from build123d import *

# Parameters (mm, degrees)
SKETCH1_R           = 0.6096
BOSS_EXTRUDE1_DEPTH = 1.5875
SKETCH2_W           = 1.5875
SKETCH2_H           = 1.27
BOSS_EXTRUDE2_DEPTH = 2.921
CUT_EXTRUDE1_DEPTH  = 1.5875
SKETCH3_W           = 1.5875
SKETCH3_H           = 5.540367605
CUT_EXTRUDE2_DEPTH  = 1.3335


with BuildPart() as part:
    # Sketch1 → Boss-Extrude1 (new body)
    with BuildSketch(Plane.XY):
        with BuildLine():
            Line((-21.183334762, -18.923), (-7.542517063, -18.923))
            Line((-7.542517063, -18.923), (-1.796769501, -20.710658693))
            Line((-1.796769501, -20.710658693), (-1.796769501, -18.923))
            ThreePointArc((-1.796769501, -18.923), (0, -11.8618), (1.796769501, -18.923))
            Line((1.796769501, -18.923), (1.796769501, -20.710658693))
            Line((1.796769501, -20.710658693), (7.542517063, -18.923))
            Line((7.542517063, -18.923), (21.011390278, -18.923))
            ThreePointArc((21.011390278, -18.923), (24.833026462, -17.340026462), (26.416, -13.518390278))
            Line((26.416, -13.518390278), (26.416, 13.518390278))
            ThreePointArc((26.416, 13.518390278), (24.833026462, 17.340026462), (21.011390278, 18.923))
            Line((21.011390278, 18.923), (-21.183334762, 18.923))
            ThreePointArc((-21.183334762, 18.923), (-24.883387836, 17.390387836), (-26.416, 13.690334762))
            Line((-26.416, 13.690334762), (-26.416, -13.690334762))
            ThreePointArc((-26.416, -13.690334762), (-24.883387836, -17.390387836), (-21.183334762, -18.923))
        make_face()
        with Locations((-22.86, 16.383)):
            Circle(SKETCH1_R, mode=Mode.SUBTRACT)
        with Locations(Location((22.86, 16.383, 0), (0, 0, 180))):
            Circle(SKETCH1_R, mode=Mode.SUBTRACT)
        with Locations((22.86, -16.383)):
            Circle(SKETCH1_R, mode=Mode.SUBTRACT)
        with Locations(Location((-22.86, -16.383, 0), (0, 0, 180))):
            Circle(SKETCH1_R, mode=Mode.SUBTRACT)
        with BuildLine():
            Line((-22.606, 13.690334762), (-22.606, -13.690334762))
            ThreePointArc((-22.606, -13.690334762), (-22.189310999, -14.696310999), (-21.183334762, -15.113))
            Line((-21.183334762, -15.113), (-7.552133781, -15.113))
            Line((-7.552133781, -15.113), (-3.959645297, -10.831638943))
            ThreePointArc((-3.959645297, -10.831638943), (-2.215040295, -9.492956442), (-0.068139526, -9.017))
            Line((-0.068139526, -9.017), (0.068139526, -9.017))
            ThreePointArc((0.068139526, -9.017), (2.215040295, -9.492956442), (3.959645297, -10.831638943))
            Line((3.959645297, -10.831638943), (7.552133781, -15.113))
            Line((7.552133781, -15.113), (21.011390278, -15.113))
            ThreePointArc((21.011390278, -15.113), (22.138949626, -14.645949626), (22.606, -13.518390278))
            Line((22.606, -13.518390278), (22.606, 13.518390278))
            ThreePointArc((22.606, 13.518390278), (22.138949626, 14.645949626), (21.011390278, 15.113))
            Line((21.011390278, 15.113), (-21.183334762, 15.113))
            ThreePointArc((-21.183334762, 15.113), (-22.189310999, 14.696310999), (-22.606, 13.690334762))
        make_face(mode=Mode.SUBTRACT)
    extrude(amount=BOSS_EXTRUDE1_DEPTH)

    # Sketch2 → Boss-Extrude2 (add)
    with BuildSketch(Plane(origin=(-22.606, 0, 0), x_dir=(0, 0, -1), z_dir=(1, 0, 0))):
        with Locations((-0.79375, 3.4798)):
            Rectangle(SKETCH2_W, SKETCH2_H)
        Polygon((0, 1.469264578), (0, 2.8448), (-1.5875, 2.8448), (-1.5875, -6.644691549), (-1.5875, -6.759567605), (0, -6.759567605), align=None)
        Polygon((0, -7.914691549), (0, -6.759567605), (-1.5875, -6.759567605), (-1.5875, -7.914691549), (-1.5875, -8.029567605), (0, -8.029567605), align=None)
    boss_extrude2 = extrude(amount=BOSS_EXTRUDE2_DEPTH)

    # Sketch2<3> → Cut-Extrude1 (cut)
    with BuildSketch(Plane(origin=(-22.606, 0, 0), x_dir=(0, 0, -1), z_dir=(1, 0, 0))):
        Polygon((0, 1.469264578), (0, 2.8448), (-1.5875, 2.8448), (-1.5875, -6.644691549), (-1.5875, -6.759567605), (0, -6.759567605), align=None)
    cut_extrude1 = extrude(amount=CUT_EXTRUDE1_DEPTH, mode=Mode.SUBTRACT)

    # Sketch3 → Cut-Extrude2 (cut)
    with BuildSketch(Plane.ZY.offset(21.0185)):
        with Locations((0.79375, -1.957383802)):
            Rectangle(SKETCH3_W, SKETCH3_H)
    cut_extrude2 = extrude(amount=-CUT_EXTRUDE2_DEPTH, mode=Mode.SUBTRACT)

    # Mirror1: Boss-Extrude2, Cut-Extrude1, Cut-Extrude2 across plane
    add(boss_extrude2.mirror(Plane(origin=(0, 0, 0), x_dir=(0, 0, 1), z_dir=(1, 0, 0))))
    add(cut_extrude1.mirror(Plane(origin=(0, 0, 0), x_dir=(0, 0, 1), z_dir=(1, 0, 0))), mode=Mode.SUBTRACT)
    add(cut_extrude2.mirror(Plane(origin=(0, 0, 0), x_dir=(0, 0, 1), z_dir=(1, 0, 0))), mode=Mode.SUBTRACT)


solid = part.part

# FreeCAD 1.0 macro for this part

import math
import FreeCAD as App
import Part
import Sketcher

V = App.Vector
Q = App.Units.Quantity


def add_polygon(sketch, points):
    """Adds a closed chain of lines whose ends are joined by coincident constraints."""
    first, n = sketch.GeometryCount, len(points)
    for a, b in zip(points, points[1:] + points[:1]):
        sketch.addGeometry(Part.LineSegment(App.Vector(*a, 0), App.Vector(*b, 0)), False)
    for i in range(n):
        sketch.addConstraint(Sketcher.Constraint("Coincident", first + i, 2, first + (i + 1) % n, 1))

doc = App.newDocument("Part")
body = doc.addObject("PartDesign::Body", "Body")

# Sketch on XY plane
sketch1 = body.newObject("Sketcher::SketchObject", "Sketch")
sketch1.AttachmentSupport = (doc.getObject("XY_Plane"), [""])
sketch1.MapMode = "FlatFace"
sketch1.addGeometry([
    Part.LineSegment(V(-21.183335, -18.923, 0), V(-7.542517, -18.923, 0)),  # 0
    Part.LineSegment(V(-7.542517, -18.923, 0), V(-1.79677, -20.710659, 0)),  # 1
    Part.LineSegment(V(-1.79677, -20.710659, 0), V(-1.79677, -18.923, 0)),  # 2
    Part.ArcOfCircle(Part.Circle(V(0, -15.621, 0), V(0, 0, 1), 3.7592), math.radians(-61.447363), math.radians(241.447363)),  # 3
    Part.LineSegment(V(1.79677, -18.923, 0), V(1.79677, -20.710659, 0)),  # 4
    Part.LineSegment(V(1.79677, -20.710659, 0), V(7.542517, -18.923, 0)),  # 5
    Part.LineSegment(V(7.542517, -18.923, 0), V(21.01139, -18.923, 0)),  # 6
    Part.ArcOfCircle(Part.Circle(V(21.01139, -13.51839, 0), V(0, 0, 1), 5.40461), math.radians(-90), math.radians(0)),  # 7
    Part.LineSegment(V(26.416, -13.51839, 0), V(26.416, 13.51839, 0)),  # 8
    Part.ArcOfCircle(Part.Circle(V(21.01139, 13.51839, 0), V(0, 0, 1), 5.40461), math.radians(0), math.radians(90)),  # 9
    Part.LineSegment(V(21.01139, 18.923, 0), V(-21.183335, 18.923, 0)),  # 10
    Part.ArcOfCircle(Part.Circle(V(-21.183335, 13.690335, 0), V(0, 0, 1), 5.232665), math.radians(90), math.radians(180)),  # 11
    Part.LineSegment(V(-26.416, 13.690335, 0), V(-26.416, -13.690335, 0)),  # 12
    Part.ArcOfCircle(Part.Circle(V(-21.183335, -13.690335, 0), V(0, 0, 1), 5.232665), math.radians(180), math.radians(270)),  # 13
    Part.Circle(V(-22.86, -16.383, 0), V(0, 0, 1), 0.6096),  # 14
    Part.Circle(V(22.86, -16.383, 0), V(0, 0, 1), 0.6096),  # 15
    Part.Circle(V(-22.86, 16.383, 0), V(0, 0, 1), 0.6096),  # 16
    Part.LineSegment(V(-22.606, -13.690335, 0), V(-22.606, 13.690335, 0)),  # 17
    Part.ArcOfCircle(Part.Circle(V(-21.183335, 13.690335, 0), V(0, 0, 1), 1.422665), math.radians(90), math.radians(180)),  # 18
    Part.LineSegment(V(-21.183335, 15.113, 0), V(21.01139, 15.113, 0)),  # 19
    Part.ArcOfCircle(Part.Circle(V(21.01139, 13.51839, 0), V(0, 0, 1), 1.59461), math.radians(0), math.radians(90)),  # 20
    Part.LineSegment(V(22.606, 13.51839, 0), V(22.606, -13.51839, 0)),  # 21
    Part.ArcOfCircle(Part.Circle(V(21.01139, -13.51839, 0), V(0, 0, 1), 1.59461), math.radians(-90), math.radians(0)),  # 22
    Part.LineSegment(V(21.01139, -15.113, 0), V(7.552134, -15.113, 0)),  # 23
    Part.LineSegment(V(7.552134, -15.113, 0), V(3.959645, -10.831639, 0)),  # 24
    Part.ArcOfCircle(Part.Circle(V(0.06814, -14.097, 0), V(0, 0, 1), 5.08), math.radians(40), math.radians(90)),  # 25
    Part.LineSegment(V(0.06814, -9.017, 0), V(-0.06814, -9.017, 0)),  # 26
    Part.ArcOfCircle(Part.Circle(V(-0.06814, -14.097, 0), V(0, 0, 1), 5.08), math.radians(90), math.radians(140)),  # 27
    Part.LineSegment(V(-3.959645, -10.831639, 0), V(-7.552134, -15.113, 0)),  # 28
    Part.LineSegment(V(-7.552134, -15.113, 0), V(-21.183335, -15.113, 0)),  # 29
    Part.ArcOfCircle(Part.Circle(V(-21.183335, -13.690335, 0), V(0, 0, 1), 1.422665), math.radians(-180), math.radians(-90)),  # 30
    Part.Circle(V(22.86, 16.383, 0), V(0, 0, 1), 0.6096),  # 31
], False)
sketch1.addConstraint([
    Sketcher.Constraint("Coincident", 0, 2, 1, 1),
    Sketcher.Constraint("Coincident", 1, 2, 2, 1),
    Sketcher.Constraint("Coincident", 2, 2, 3, 2),
    Sketcher.Constraint("Coincident", 3, 1, 4, 1),
    Sketcher.Constraint("Coincident", 4, 2, 5, 1),
    Sketcher.Constraint("Coincident", 5, 2, 6, 1),
    Sketcher.Constraint("Tangent", 6, 2, 7, 1),
    Sketcher.Constraint("Tangent", 7, 2, 8, 1),
    Sketcher.Constraint("Tangent", 8, 2, 9, 1),
    Sketcher.Constraint("Tangent", 9, 2, 10, 1),
    Sketcher.Constraint("Tangent", 10, 2, 11, 1),
    Sketcher.Constraint("Tangent", 11, 2, 12, 1),
    Sketcher.Constraint("Tangent", 12, 2, 13, 1),
    Sketcher.Constraint("Tangent", 13, 2, 0, 1),
    Sketcher.Constraint("Tangent", 17, 2, 18, 2),
    Sketcher.Constraint("Tangent", 18, 1, 19, 1),
    Sketcher.Constraint("Tangent", 19, 2, 20, 2),
    Sketcher.Constraint("Tangent", 20, 1, 21, 1),
    Sketcher.Constraint("Tangent", 21, 2, 22, 2),
    Sketcher.Constraint("Tangent", 22, 1, 23, 1),
    Sketcher.Constraint("Coincident", 23, 2, 24, 1),
    Sketcher.Constraint("Tangent", 24, 2, 25, 1),
    Sketcher.Constraint("Tangent", 25, 2, 26, 1),
    Sketcher.Constraint("Tangent", 26, 2, 27, 1),
    Sketcher.Constraint("Tangent", 27, 2, 28, 1),
    Sketcher.Constraint("Coincident", 28, 2, 29, 1),
    Sketcher.Constraint("Tangent", 29, 2, 30, 2),
    Sketcher.Constraint("Tangent", 30, 1, 17, 1),
    Sketcher.Constraint("Horizontal", 0),
    Sketcher.Constraint("Vertical", 2),
    Sketcher.Constraint("Vertical", 4),
    Sketcher.Constraint("Horizontal", 6),
    Sketcher.Constraint("Vertical", 8),
    Sketcher.Constraint("Horizontal", 10),
    Sketcher.Constraint("Vertical", 12),
    Sketcher.Constraint("Vertical", 17),
    Sketcher.Constraint("Horizontal", 19),
    Sketcher.Constraint("Vertical", 21),
    Sketcher.Constraint("Horizontal", 23),
    Sketcher.Constraint("Horizontal", 26),
    Sketcher.Constraint("Horizontal", 29),
    Sketcher.Constraint("Coincident", 18, 3, 11, 3),
    Sketcher.Constraint("Coincident", 20, 3, 9, 3),
    Sketcher.Constraint("Coincident", 22, 3, 7, 3),
    Sketcher.Constraint("Coincident", 30, 3, 13, 3),
    Sketcher.Constraint("Equal", 7, 9),
    Sketcher.Constraint("Equal", 11, 13),
    Sketcher.Constraint("Equal", 14, 15),
    Sketcher.Constraint("Equal", 15, 16),
    Sketcher.Constraint("Equal", 25, 27),
    Sketcher.Constraint("Equal", 16, 31),
    Sketcher.Constraint("Symmetric", 15, 3, 16, 3, -1, 1),
    Sketcher.Constraint("Symmetric", 14, 3, 31, 3, -1, 1),
    Sketcher.Constraint("Symmetric", 14, 3, 15, 3, -2),
    Sketcher.Constraint("Symmetric", 2, 2, 3, 1, -2),
    Sketcher.Constraint("Symmetric", 0, 2, 5, 2, -2),
    Sketcher.Constraint("Symmetric", 24, 2, 27, 2, -2),
    Sketcher.Constraint("Horizontal", 0, 2, 2, 2),
    Sketcher.Constraint("Horizontal", 1, 2, 4, 2),
    Sketcher.Constraint("Radius", 25, Q("0.2 in")),
    Sketcher.Constraint("Diameter", 14, Q("0.048 in")),
    Sketcher.Constraint("Angle", 24, Q("130 deg")),
    Sketcher.Constraint("Radius", 3, Q("0.148 in")),
    Sketcher.Constraint("DistanceX", 14, 3, -1, 1, Q("0.9 in")),
    Sketcher.Constraint("DistanceY", 6, 2, 15, 3, Q("0.1 in")),
    Sketcher.Constraint("DistanceY", 31, 3, 9, 2, Q("0.1 in")),
    Sketcher.Constraint("DistanceX", -1, 1, 7, 2, Q("1.04 in")),
    Sketcher.Constraint("DistanceX", 11, 2, -1, 1, Q("1.04 in")),
    Sketcher.Constraint("DistanceX", 17, 2, -1, 1, Q("0.89 in")),
    Sketcher.Constraint("DistanceY", 14, 3, 3, 3, Q("0.03 in")),
    Sketcher.Constraint("DistanceY", 14, 3, 16, 3, Q("1.29 in")),
    Sketcher.Constraint("DistanceY", 3, 3, 25, 3, Q("0.06 in")),
    Sketcher.Constraint("Radius", 7, Q("5.40461 mm")),
    Sketcher.Constraint("DistanceX", 29, 2, 29, 1, Q("13.631201 mm")),
    Sketcher.Constraint("Radius", 11, Q("5.232665 mm")),
    Sketcher.Constraint("DistanceY", 2, 1, 2, 2, Q("1.787659 mm")),
    Sketcher.Constraint("Distance", 1, Q("6.01742 mm")),
])
pad1 = body.newObject("PartDesign::Pad", "Pad")
pad1.Profile = sketch1
pad1.Length = Q("0.0625 in")

# Sketch on YZ plane
sketch2 = body.newObject("Sketcher::SketchObject", "Sketch001")
sketch2.AttachmentSupport = (doc.getObject("YZ_Plane"), [""])
sketch2.MapMode = "FlatFace"
sketch2.AttachmentOffset = App.Placement(V(0, 0, -0.89 * 25.4), App.Rotation())
add_polygon(sketch2, [(4.1148, 1.5875), (-8.029568, 1.5875), (-8.029568, 0), (4.1148, 0)])  # lines 0-3
sketch2.addConstraint([
    Sketcher.Constraint("Horizontal", 0),
    Sketcher.Constraint("Vertical", 1),
    Sketcher.Constraint("Horizontal", 2),
    Sketcher.Constraint("Vertical", 3),
    Sketcher.Constraint("PointOnObject", 1, 2, -1),
    Sketcher.Constraint("DistanceY", 1, 2, 1, 1, Q("0.0625 in")),
    Sketcher.Constraint("DistanceX", -1, 1, 2, 2, Q("0.162 in")),
    Sketcher.Constraint("DistanceX", 0, 2, 0, 1, Q("12.144368 mm")),
])
pad2 = body.newObject("PartDesign::Pad", "Pad001")
pad2.Profile = sketch2
pad2.Length = Q("0.115 in")

# Sketch on YZ plane
sketch3 = body.newObject("Sketcher::SketchObject", "Sketch002")
sketch3.AttachmentSupport = (doc.getObject("YZ_Plane"), [""])
sketch3.MapMode = "FlatFace"
sketch3.AttachmentOffset = App.Placement(V(0, 0, -0.89 * 25.4), App.Rotation())
add_polygon(sketch3, [(2.8448, 0), (2.8448, 1.5875), (-6.759568, 1.5875), (-6.759568, 0)])  # lines 0-3
sketch3.addConstraint([
    Sketcher.Constraint("Vertical", 0),
    Sketcher.Constraint("Horizontal", 1),
    Sketcher.Constraint("Vertical", 2),
    Sketcher.Constraint("Horizontal", 3),
    Sketcher.Constraint("PointOnObject", 2, 2, -1),
    Sketcher.Constraint("DistanceY", 0, 1, 0, 2, Q("0.0625 in")),
    Sketcher.Constraint("DistanceX", -1, 1, 0, 2, Q("0.112 in")),
    Sketcher.Constraint("DistanceX", 1, 2, 1, 1, Q("9.604368 mm")),
])
pocket1 = body.newObject("PartDesign::Pocket", "Pocket")
pocket1.Profile = sketch3
pocket1.Length = Q("0.0625 in")
pocket1.Reversed = True

# Sketch on YZ plane
sketch4 = body.newObject("Sketcher::SketchObject", "Sketch003")
sketch4.AttachmentSupport = (doc.getObject("YZ_Plane"), [""])
sketch4.MapMode = "FlatFace"
sketch4.AttachmentOffset = App.Placement(V(0, 0, -0.8275 * 25.4), App.Rotation())
add_polygon(sketch4, [(0.8128, 0), (-4.727568, 0), (-4.727568, 1.5875), (0.8128, 1.5875)])  # lines 0-3
sketch4.addConstraint([
    Sketcher.Constraint("Horizontal", 0),
    Sketcher.Constraint("Vertical", 1),
    Sketcher.Constraint("Horizontal", 2),
    Sketcher.Constraint("Vertical", 3),
    Sketcher.Constraint("PointOnObject", 0, 2, -1),
    Sketcher.Constraint("DistanceY", 1, 1, 1, 2, Q("0.0625 in")),
    Sketcher.Constraint("DistanceX", -1, 1, 2, 2, Q("0.032 in")),
    Sketcher.Constraint("DistanceX", 0, 2, 0, 1, Q("5.540368 mm")),
])
pocket2 = body.newObject("PartDesign::Pocket", "Pocket001")
pocket2.Profile = sketch4
pocket2.Length = Q("0.0525 in")
pocket2.Reversed = True
doc.recompute()

mirrored = body.newObject("PartDesign::Mirrored", "Mirrored")
mirrored.Originals = [pad2, pocket1, pocket2]
mirrored.MirrorPlane = (doc.getObject("YZ_Plane"), [""])
body.Tip = mirrored

doc.recompute()
